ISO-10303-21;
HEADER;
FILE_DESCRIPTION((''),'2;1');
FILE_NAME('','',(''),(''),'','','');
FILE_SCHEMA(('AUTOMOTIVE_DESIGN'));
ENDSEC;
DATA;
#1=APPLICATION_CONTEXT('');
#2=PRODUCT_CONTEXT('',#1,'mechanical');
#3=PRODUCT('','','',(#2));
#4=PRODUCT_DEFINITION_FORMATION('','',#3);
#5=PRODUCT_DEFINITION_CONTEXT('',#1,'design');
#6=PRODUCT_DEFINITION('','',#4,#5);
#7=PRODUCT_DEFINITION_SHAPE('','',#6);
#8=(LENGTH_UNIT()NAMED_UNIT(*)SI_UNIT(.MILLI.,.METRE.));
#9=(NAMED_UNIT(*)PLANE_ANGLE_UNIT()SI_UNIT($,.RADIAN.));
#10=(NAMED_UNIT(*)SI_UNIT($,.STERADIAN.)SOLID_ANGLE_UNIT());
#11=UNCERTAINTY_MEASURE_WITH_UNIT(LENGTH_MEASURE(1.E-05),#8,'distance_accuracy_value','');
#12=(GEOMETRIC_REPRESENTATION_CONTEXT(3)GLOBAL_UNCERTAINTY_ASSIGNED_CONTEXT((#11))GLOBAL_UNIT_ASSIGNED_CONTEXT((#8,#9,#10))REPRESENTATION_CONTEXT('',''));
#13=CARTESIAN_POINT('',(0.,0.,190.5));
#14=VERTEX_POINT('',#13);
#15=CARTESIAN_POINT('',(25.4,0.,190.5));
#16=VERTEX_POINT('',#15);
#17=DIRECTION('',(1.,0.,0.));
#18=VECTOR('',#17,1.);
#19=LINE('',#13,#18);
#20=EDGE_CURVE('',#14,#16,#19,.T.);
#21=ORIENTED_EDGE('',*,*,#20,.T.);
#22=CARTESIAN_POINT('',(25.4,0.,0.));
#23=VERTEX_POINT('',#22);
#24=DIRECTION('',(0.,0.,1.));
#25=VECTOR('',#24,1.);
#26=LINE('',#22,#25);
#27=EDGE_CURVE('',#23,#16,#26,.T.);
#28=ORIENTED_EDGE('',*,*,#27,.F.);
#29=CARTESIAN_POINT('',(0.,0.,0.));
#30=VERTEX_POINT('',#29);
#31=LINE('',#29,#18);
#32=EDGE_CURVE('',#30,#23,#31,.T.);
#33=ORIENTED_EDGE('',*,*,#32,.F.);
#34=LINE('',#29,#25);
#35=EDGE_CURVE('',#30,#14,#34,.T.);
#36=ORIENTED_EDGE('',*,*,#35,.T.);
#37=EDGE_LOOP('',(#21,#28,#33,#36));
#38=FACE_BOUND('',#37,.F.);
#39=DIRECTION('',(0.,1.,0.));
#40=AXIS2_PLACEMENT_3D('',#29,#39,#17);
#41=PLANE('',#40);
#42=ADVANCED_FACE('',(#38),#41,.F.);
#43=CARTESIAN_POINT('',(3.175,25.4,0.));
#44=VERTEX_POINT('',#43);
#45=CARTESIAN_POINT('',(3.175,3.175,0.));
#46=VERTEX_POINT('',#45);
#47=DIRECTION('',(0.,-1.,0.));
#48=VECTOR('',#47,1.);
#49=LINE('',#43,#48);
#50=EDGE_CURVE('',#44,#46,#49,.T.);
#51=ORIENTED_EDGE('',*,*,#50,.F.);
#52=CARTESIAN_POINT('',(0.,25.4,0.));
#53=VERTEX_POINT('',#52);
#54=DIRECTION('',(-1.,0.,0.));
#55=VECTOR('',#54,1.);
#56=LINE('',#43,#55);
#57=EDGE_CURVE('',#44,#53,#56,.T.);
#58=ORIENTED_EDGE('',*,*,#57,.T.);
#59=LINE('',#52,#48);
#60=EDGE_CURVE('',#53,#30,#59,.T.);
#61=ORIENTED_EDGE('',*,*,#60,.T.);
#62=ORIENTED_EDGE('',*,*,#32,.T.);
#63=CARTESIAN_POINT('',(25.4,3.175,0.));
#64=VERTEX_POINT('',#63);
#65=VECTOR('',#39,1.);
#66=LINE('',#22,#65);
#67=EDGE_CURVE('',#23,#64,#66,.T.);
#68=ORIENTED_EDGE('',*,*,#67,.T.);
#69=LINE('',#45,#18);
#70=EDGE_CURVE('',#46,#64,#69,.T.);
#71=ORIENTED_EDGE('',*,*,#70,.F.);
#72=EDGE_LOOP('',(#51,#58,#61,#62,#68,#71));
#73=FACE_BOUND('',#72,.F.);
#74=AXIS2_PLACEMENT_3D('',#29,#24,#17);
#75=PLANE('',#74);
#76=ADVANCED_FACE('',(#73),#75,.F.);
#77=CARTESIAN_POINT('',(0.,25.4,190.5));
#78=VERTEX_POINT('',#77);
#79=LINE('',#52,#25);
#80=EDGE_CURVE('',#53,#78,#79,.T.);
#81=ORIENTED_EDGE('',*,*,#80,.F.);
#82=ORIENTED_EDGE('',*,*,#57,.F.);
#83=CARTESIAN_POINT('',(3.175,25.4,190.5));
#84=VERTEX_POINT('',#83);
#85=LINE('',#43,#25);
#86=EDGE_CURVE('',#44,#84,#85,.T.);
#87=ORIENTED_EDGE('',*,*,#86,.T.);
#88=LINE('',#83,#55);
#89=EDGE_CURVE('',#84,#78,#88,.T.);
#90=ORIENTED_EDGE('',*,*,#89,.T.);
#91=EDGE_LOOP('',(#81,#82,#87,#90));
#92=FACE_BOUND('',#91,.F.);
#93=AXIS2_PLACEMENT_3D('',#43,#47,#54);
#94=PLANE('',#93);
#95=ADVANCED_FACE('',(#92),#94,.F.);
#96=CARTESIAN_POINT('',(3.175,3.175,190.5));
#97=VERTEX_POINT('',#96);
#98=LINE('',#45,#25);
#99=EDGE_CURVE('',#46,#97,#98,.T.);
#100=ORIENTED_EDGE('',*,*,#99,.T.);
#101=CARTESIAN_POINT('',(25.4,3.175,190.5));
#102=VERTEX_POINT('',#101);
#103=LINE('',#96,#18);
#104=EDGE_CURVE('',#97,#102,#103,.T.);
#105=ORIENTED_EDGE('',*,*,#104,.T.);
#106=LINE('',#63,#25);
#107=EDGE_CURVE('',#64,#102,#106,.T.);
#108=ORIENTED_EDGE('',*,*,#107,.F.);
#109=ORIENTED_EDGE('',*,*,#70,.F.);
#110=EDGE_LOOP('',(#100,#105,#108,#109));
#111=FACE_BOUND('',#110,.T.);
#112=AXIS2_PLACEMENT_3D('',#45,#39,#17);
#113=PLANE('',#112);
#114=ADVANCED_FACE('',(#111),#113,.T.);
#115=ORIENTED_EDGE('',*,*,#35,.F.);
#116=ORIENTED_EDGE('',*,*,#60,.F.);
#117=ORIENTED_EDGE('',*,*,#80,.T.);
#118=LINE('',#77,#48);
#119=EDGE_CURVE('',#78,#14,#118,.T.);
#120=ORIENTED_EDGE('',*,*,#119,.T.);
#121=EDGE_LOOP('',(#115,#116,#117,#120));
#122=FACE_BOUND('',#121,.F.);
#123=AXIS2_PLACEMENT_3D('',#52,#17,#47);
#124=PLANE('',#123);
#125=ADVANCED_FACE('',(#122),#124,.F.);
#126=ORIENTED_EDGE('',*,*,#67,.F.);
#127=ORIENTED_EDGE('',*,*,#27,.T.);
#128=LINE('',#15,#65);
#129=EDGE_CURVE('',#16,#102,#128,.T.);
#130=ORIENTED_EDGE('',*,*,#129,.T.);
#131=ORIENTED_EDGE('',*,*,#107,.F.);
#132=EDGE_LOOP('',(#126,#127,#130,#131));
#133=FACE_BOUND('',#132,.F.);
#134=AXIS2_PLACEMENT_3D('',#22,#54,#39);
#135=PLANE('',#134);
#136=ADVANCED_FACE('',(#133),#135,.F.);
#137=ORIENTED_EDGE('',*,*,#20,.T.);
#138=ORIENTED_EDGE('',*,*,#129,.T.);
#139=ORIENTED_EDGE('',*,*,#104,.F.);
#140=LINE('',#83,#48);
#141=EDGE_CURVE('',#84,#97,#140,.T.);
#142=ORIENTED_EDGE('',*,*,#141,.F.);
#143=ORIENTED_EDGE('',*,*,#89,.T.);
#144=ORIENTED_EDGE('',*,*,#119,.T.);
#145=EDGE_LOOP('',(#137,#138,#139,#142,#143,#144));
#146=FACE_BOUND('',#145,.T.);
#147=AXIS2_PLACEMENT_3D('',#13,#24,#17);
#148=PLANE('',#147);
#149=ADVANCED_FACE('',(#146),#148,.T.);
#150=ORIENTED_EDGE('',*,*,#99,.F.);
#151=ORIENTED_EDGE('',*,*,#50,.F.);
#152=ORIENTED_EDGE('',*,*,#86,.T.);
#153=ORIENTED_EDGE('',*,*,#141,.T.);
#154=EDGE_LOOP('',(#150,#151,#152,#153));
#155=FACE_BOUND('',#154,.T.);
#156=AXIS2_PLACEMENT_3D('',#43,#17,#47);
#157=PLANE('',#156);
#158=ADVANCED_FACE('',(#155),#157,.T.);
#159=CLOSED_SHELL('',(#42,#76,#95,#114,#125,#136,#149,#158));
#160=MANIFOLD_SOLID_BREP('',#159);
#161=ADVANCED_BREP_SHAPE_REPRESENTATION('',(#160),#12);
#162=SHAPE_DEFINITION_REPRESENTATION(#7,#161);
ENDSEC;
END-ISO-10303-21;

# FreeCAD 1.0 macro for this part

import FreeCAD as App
import Part
import Sketcher
Q = App.Units.Quantity

doc = App.newDocument("Part")
body = doc.addObject("PartDesign::Body", "Body")

sketch1 = body.newObject("Sketcher::SketchObject", "Sketch")
sketch1.AttachmentSupport = (doc.getObject("XY_Plane"), [""])
sketch1.MapMode = "FlatFace"
sketch1.addGeometry([
    Part.LineSegment(App.Vector(0, 25.4, 0), App.Vector(0, 0, 0)),
    Part.LineSegment(App.Vector(0, 0, 0), App.Vector(25.4, 0, 0)),
    Part.LineSegment(App.Vector(25.4, 0, 0), App.Vector(25.4, 3.2, 0)),
    Part.LineSegment(App.Vector(25.4, 3.2, 0), App.Vector(3.2, 3.2, 0)),
    Part.LineSegment(App.Vector(3.2, 3.2, 0), App.Vector(3.2, 25.4, 0)),
    Part.LineSegment(App.Vector(3.2, 25.4, 0), App.Vector(0, 25.4, 0)),
], False)
sketch1.addConstraint([
    Sketcher.Constraint("Coincident", 0, 2, 1, 1),
    Sketcher.Constraint("Coincident", 1, 2, 2, 1),
    Sketcher.Constraint("Coincident", 2, 2, 3, 1),
    Sketcher.Constraint("Coincident", 3, 2, 4, 1),
    Sketcher.Constraint("Coincident", 4, 2, 5, 1),
    Sketcher.Constraint("Coincident", 5, 2, 0, 1),
    Sketcher.Constraint("Vertical", 0),
    Sketcher.Constraint("Horizontal", 1),
    Sketcher.Constraint("Vertical", 2),
    Sketcher.Constraint("Horizontal", 3),
    Sketcher.Constraint("Vertical", 4),
    Sketcher.Constraint("Horizontal", 5),
    Sketcher.Constraint("Coincident", 0, 2, -1, 1),
    Sketcher.Constraint("Equal", 1, 0),
    Sketcher.Constraint("Equal", 5, 2),
    Sketcher.Constraint("DistanceX", 1, 1, 1, 2, Q("1 in")),
    Sketcher.Constraint("DistanceX", 5, 2, 5, 1, Q("0.125 in")),
])
pad1 = body.newObject("PartDesign::Pad", "Pad")
pad1.Profile = sketch1
pad1.Length = Q("7.5 in")

doc.recompute()
